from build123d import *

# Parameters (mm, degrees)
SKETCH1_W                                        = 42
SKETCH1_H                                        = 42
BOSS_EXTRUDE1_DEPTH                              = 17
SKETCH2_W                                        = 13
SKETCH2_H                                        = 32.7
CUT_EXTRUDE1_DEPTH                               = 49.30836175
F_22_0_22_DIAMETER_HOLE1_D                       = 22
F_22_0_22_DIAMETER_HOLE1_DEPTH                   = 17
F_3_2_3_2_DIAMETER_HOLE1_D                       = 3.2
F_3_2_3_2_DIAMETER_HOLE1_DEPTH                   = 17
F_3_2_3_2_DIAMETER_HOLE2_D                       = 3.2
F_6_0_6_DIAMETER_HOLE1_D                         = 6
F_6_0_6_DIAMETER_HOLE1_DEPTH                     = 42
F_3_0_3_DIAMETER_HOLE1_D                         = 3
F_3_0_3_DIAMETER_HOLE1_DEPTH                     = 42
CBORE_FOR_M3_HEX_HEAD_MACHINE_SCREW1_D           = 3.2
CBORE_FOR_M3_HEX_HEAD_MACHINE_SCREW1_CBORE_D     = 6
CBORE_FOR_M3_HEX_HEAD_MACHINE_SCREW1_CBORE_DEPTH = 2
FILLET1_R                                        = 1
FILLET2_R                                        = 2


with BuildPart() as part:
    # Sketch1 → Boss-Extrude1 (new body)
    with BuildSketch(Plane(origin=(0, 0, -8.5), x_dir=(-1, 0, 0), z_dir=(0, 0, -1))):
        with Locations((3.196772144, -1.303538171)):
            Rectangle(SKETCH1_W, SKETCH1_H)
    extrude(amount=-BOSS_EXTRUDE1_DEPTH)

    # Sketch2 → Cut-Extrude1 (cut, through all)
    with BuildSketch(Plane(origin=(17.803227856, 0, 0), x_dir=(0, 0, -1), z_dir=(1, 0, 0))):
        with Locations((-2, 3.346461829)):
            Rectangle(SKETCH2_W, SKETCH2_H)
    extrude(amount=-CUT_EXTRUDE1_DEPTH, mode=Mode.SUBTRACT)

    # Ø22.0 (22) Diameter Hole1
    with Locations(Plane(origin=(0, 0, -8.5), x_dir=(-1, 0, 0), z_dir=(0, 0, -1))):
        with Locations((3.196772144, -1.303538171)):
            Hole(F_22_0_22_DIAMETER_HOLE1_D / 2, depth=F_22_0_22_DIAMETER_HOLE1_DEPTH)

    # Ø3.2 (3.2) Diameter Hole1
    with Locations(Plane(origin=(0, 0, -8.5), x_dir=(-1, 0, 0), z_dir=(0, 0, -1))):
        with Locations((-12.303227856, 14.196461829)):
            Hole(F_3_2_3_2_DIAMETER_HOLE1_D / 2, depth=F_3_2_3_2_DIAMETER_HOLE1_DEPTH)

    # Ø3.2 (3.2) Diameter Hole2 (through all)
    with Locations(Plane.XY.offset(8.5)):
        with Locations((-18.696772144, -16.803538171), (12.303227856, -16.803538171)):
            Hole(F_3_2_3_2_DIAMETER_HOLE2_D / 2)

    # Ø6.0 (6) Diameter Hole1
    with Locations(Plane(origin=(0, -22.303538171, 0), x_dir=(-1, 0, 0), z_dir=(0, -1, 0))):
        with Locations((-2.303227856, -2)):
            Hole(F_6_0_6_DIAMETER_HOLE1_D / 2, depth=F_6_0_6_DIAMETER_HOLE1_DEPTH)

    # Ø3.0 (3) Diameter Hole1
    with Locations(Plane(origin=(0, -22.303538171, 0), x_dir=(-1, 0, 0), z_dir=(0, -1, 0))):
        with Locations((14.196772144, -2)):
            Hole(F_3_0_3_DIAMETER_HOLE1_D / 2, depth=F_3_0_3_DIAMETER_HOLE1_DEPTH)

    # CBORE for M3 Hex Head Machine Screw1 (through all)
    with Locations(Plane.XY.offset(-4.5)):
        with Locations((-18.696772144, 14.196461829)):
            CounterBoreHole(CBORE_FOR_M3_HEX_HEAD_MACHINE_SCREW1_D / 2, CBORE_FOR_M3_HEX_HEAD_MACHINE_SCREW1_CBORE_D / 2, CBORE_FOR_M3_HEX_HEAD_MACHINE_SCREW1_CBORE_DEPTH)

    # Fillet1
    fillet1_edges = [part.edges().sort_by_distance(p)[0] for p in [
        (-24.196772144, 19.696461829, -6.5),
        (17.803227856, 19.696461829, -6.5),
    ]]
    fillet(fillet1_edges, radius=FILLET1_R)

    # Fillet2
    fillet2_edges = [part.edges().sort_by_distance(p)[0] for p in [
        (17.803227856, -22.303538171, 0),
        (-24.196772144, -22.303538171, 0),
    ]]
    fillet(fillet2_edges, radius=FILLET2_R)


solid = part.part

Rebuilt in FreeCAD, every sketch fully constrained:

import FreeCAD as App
import Part
import Sketcher

V = App.Vector
Q = App.Units.Quantity


def edges_at(feature, points):
    """Names of the edges that pass closest to the given points."""
    edges = feature.Shape.Edges
    near = lambda p: min(range(len(edges)), key=lambda i: edges[i].distToShape(Part.Vertex(*p))[0])
    return sorted({f"Edge{near(p) + 1}" for p in points})

doc = App.newDocument("Part")
params = doc.addObject("Spreadsheet::Sheet", "Params")
for row, (alias, value) in enumerate([
    ("sketch1_width", "42 mm"),
    ("pad1_length", "17 mm"),
    ("sketch2_height", "13 mm"),
    ("sketch2_width", "32.7 mm"),
    ("sketch3_diameter", "22 mm"),
    ("hole_diameter", "22 mm"),
    ("hole_depth", "17 mm"),
    ("sketch4_diameter", "3.2 mm"),
    ("hole2_diameter", "3.2 mm"),
    ("hole2_depth", "17 mm"),
    ("sketch5_diameter", "3.2 mm"),
    ("hole3_diameter", "3.2 mm"),
    ("sketch6_diameter", "6 mm"),
    ("hole4_diameter", "6 mm"),
    ("hole4_depth", "42 mm"),
    ("sketch7_diameter", "3 mm"),
    ("hole5_diameter", "3 mm"),
    ("hole5_depth", "42 mm"),
    ("sketch8_diameter", "3.2 mm"),
    ("hole6_diameter", "3.2 mm"),
    ("hole6_cbore_diameter", "6 mm"),
    ("hole6_cbore_depth", "2 mm"),
    ("fillet_radius", "1 mm"),
    ("fillet2_radius", "2 mm"),
], start=1):
    params.set(f"A{row}", alias)
    params.set(f"B{row}", "=" + value)
    params.setAlias(f"B{row}", alias)

body = doc.addObject("PartDesign::Body", "Body")

sketch1 = body.newObject("Sketcher::SketchObject", "Sketch")
sketch1.AttachmentSupport = (doc.getObject("XY_Plane"), [""])
sketch1.MapMode = "FlatFace"
sketch1.AttachmentOffset = App.Placement(V(0, 0, -8.5), App.Rotation())
sketch1.addGeometry(Part.LineSegment(V(18, 20, 0), V(18, -22, 0)), False)
sketch1.addGeometry(Part.LineSegment(V(18, -22, 0), V(-24, -22, 0)), False)
sketch1.addGeometry(Part.LineSegment(V(-24, -22, 0), V(-24, 20, 0)), False)
sketch1.addGeometry(Part.LineSegment(V(-24, 20, 0), V(18, 20, 0)), False)
sketch1.addConstraint(Sketcher.Constraint("Coincident", 0, 2, 1, 1))
sketch1.addConstraint(Sketcher.Constraint("Coincident", 1, 2, 2, 1))
sketch1.addConstraint(Sketcher.Constraint("Coincident", 2, 2, 3, 1))
sketch1.addConstraint(Sketcher.Constraint("Coincident", 3, 2, 0, 1))
sketch1.addConstraint(Sketcher.Constraint("Vertical", 0))
sketch1.addConstraint(Sketcher.Constraint("Horizontal", 1))
sketch1.addConstraint(Sketcher.Constraint("Vertical", 2))
sketch1.addConstraint(Sketcher.Constraint("Horizontal", 3))
sketch1.addConstraint(Sketcher.Constraint("Equal", 3, 0))
sketch1.addConstraint(Sketcher.Constraint("DistanceX", 1, 2, 1, 1, Q("42 mm")))
sketch1.addConstraint(Sketcher.Constraint("DistanceY", 0, 2, -1, 1, Q("22.303538 mm")))
sketch1.addConstraint(Sketcher.Constraint("DistanceX", -1, 1, 0, 2, Q("17.803228 mm")))
sketch1.setExpression("Constraints[9]", "Params.sketch1_width")
pad1 = body.newObject("PartDesign::Pad", "Pad")
pad1.Profile = sketch1
pad1.setExpression("Length", "Params.pad1_length")

sketch2 = body.newObject("Sketcher::SketchObject", "Sketch001")
sketch2.AttachmentSupport = (doc.getObject("YZ_Plane"), [""])
sketch2.MapMode = "FlatFace"
sketch2.AttachmentOffset = App.Placement(V(0, 0, 17.803228), App.Rotation())
sketch2.addGeometry(Part.LineSegment(V(20, 8, 0), V(-13, 8, 0)), False)
sketch2.addGeometry(Part.LineSegment(V(-13, 8, 0), V(-13, -4, 0)), False)
sketch2.addGeometry(Part.LineSegment(V(-13, -4, 0), V(20, -4, 0)), False)
sketch2.addGeometry(Part.LineSegment(V(20, -4, 0), V(20, 8, 0)), False)
sketch2.addConstraint(Sketcher.Constraint("Coincident", 0, 2, 1, 1))
sketch2.addConstraint(Sketcher.Constraint("Coincident", 1, 2, 2, 1))
sketch2.addConstraint(Sketcher.Constraint("Coincident", 2, 2, 3, 1))
sketch2.addConstraint(Sketcher.Constraint("Coincident", 3, 2, 0, 1))
sketch2.addConstraint(Sketcher.Constraint("Horizontal", 0))
sketch2.addConstraint(Sketcher.Constraint("Vertical", 1))
sketch2.addConstraint(Sketcher.Constraint("Horizontal", 2))
sketch2.addConstraint(Sketcher.Constraint("Vertical", 3))
sketch2.addConstraint(Sketcher.Constraint("DistanceY", 1, 2, 1, 1, Q("13 mm")))
sketch2.addConstraint(Sketcher.Constraint("DistanceX", 0, 2, 0, 1, Q("32.7 mm")))
sketch2.addConstraint(Sketcher.Constraint("DistanceY", -1, 1, 0, 2, Q("8.5 mm")))
sketch2.addConstraint(Sketcher.Constraint("DistanceX", 0, 2, -1, 1, Q("13.003538 mm")))
sketch2.setExpression("Constraints[8]", "Params.sketch2_height")
sketch2.setExpression("Constraints[9]", "Params.sketch2_width")
pocket1 = body.newObject("PartDesign::Pocket", "Pocket")
pocket1.Profile = sketch2
pocket1.Type = "ThroughAll"

sketch3 = body.newObject("Sketcher::SketchObject", "Sketch002")
sketch3.AttachmentSupport = (doc.getObject("XY_Plane"), [""])
sketch3.MapMode = "FlatFace"
sketch3.AttachmentOffset = App.Placement(V(0, 0, -8.5), App.Rotation())
sketch3.addGeometry(Part.Circle(V(-3, -1, 0), V(0, 0, 1), 11), False)
sketch3.addConstraint(Sketcher.Constraint("Diameter", 0, Q("22 mm")))
sketch3.addConstraint(Sketcher.Constraint("DistanceY", 0, 3, -1, 1, Q("1.303538 mm")))
sketch3.addConstraint(Sketcher.Constraint("DistanceX", 0, 3, -1, 1, Q("3.196772 mm")))
sketch3.setExpression("Constraints[0]", "Params.sketch3_diameter")
doc.recompute()
hole = body.newObject("PartDesign::Hole", "Hole")
hole.Profile = sketch3
hole.ThreadType = "None"
hole.setExpression("Diameter", "Params.hole_diameter")
hole.DepthType = "Dimension"
hole.setExpression("Depth", "Params.hole_depth")
hole.DrillPoint = "Flat"
hole.Reversed = True

sketch4 = body.newObject("Sketcher::SketchObject", "Sketch003")
sketch4.AttachmentSupport = (doc.getObject("XY_Plane"), [""])
sketch4.MapMode = "FlatFace"
sketch4.AttachmentOffset = App.Placement(V(0, 0, -8.5), App.Rotation())
sketch4.addGeometry(Part.Circle(V(12.3, 14.2, 0), V(0, 0, 1), 1.6), False)
sketch4.addConstraint(Sketcher.Constraint("Diameter", 0, Q("3.2 mm")))
sketch4.addConstraint(Sketcher.Constraint("DistanceY", -1, 1, 0, 3, Q("14.196462 mm")))
sketch4.addConstraint(Sketcher.Constraint("DistanceX", -1, 1, 0, 3, Q("12.303228 mm")))
sketch4.setExpression("Constraints[0]", "Params.sketch4_diameter")
doc.recompute()
hole2 = body.newObject("PartDesign::Hole", "Hole001")
hole2.Profile = sketch4
hole2.ThreadType = "None"
hole2.setExpression("Diameter", "Params.hole2_diameter")
hole2.DepthType = "Dimension"
hole2.setExpression("Depth", "Params.hole2_depth")
hole2.DrillPoint = "Flat"
hole2.Reversed = True

sketch5 = body.newObject("Sketcher::SketchObject", "Sketch004")
sketch5.AttachmentSupport = (doc.getObject("XY_Plane"), [""])
sketch5.MapMode = "FlatFace"
sketch5.AttachmentOffset = App.Placement(V(0, 0, 8.5), App.Rotation())
sketch5.addGeometry(Part.Circle(V(-18.7, -16.8, 0), V(0, 0, 1), 1.6), False)
sketch5.addGeometry(Part.Circle(V(12.3, -16.8, 0), V(0, 0, 1), 1.6), False)
sketch5.addConstraint(Sketcher.Constraint("Equal", 0, 1))
sketch5.addConstraint(Sketcher.Constraint("Horizontal", 0, 3, 1, 3))
sketch5.addConstraint(Sketcher.Constraint("Diameter", 0, Q("3.2 mm")))
sketch5.addConstraint(Sketcher.Constraint("DistanceX", 0, 3, 1, 3, Q("31 mm")))
sketch5.addConstraint(Sketcher.Constraint("DistanceY", 0, 3, -1, 1, Q("16.803538 mm")))
sketch5.addConstraint(Sketcher.Constraint("DistanceX", 0, 3, -1, 1, Q("18.696772 mm")))
sketch5.setExpression("Constraints[2]", "Params.sketch5_diameter")
doc.recompute()
hole3 = body.newObject("PartDesign::Hole", "Hole002")
hole3.Profile = sketch5
hole3.ThreadType = "None"
hole3.setExpression("Diameter", "Params.hole3_diameter")
hole3.DepthType = "ThroughAll"

sketch6 = body.newObject("Sketcher::SketchObject", "Sketch005")
sketch6.AttachmentSupport = (doc.getObject("XZ_Plane"), [""])
sketch6.MapMode = "FlatFace"
sketch6.AttachmentOffset = App.Placement(V(0, 0, 22.303538), App.Rotation())
sketch6.addGeometry(Part.Circle(V(2.3, 2, 0), V(0, 0, 1), 3), False)
sketch6.addConstraint(Sketcher.Constraint("Diameter", 0, Q("6 mm")))
sketch6.addConstraint(Sketcher.Constraint("DistanceY", -1, 1, 0, 3, Q("2 mm")))
sketch6.addConstraint(Sketcher.Constraint("DistanceX", -1, 1, 0, 3, Q("2.303228 mm")))
sketch6.setExpression("Constraints[0]", "Params.sketch6_diameter")
doc.recompute()
hole4 = body.newObject("PartDesign::Hole", "Hole003")
hole4.Profile = sketch6
hole4.ThreadType = "None"
hole4.setExpression("Diameter", "Params.hole4_diameter")
hole4.DepthType = "Dimension"
hole4.setExpression("Depth", "Params.hole4_depth")
hole4.DrillPoint = "Flat"

sketch7 = body.newObject("Sketcher::SketchObject", "Sketch006")
sketch7.AttachmentSupport = (doc.getObject("XZ_Plane"), [""])
sketch7.MapMode = "FlatFace"
sketch7.AttachmentOffset = App.Placement(V(0, 0, 22.303538), App.Rotation())
sketch7.addGeometry(Part.Circle(V(-14.2, 2, 0), V(0, 0, 1), 1.5), False)
sketch7.addConstraint(Sketcher.Constraint("Diameter", 0, Q("3 mm")))
sketch7.addConstraint(Sketcher.Constraint("DistanceY", -1, 1, 0, 3, Q("2 mm")))
sketch7.addConstraint(Sketcher.Constraint("DistanceX", 0, 3, -1, 1, Q("14.196772 mm")))
sketch7.setExpression("Constraints[0]", "Params.sketch7_diameter")
doc.recompute()
hole5 = body.newObject("PartDesign::Hole", "Hole004")
hole5.Profile = sketch7
hole5.ThreadType = "None"
hole5.setExpression("Diameter", "Params.hole5_diameter")
hole5.DepthType = "Dimension"
hole5.setExpression("Depth", "Params.hole5_depth")
hole5.DrillPoint = "Flat"

sketch8 = body.newObject("Sketcher::SketchObject", "Sketch007")
sketch8.AttachmentSupport = (doc.getObject("XY_Plane"), [""])
sketch8.MapMode = "FlatFace"
sketch8.AttachmentOffset = App.Placement(V(0, 0, -4.5), App.Rotation())
sketch8.addGeometry(Part.Circle(V(-18.7, 14.2, 0), V(0, 0, 1), 1.6), False)
sketch8.addConstraint(Sketcher.Constraint("Diameter", 0, Q("3.2 mm")))
sketch8.addConstraint(Sketcher.Constraint("DistanceY", -1, 1, 0, 3, Q("14.196462 mm")))
sketch8.addConstraint(Sketcher.Constraint("DistanceX", 0, 3, -1, 1, Q("18.696772 mm")))
sketch8.setExpression("Constraints[0]", "Params.sketch8_diameter")
doc.recompute()
hole6 = body.newObject("PartDesign::Hole", "Hole005")
hole6.Profile = sketch8
hole6.ThreadType = "None"
hole6.setExpression("Diameter", "Params.hole6_diameter")
hole6.DepthType = "ThroughAll"
hole6.HoleCutType = "Counterbore"
hole6.setExpression("HoleCutDiameter", "Params.hole6_cbore_diameter")
hole6.setExpression("HoleCutDepth", "Params.hole6_cbore_depth")
doc.recompute()

fillet = body.newObject("PartDesign::Fillet", "Fillet")
fillet.Base = (hole6, edges_at(hole6, [(-24.197, 19.696, -6.5), (17.803, 19.696, -6.5)]))
fillet.setExpression("Radius", "Params.fillet_radius")
doc.recompute()

fillet2 = body.newObject("PartDesign::Fillet", "Fillet001")
fillet2.Base = (fillet, edges_at(fillet, [(17.803, -22.304, 0), (-24.197, -22.304, 0)]))
fillet2.setExpression("Radius", "Params.fillet2_radius")

doc.recompute()
